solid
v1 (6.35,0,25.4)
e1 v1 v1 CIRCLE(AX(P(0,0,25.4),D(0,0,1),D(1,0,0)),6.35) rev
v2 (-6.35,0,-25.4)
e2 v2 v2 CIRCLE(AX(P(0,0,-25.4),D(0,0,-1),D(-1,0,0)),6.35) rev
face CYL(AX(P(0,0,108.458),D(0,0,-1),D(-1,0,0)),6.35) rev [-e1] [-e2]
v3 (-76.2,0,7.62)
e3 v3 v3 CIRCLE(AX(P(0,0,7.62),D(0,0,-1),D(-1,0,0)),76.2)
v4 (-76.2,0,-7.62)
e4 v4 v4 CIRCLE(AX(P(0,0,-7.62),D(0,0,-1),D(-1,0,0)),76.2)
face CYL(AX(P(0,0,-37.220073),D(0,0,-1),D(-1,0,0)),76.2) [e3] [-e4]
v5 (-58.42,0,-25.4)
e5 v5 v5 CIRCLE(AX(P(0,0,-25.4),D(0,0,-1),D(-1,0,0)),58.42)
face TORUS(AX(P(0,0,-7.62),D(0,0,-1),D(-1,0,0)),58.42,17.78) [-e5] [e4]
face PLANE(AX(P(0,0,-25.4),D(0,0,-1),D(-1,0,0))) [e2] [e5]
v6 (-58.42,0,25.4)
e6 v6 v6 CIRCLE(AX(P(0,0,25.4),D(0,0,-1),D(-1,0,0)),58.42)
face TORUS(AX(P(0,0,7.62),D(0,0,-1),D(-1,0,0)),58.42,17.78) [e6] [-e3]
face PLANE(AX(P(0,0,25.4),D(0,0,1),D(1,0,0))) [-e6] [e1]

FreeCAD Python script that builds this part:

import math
import FreeCAD as App
import Part
import Sketcher
Q = App.Units.Quantity

doc = App.newDocument("Part")
body = doc.addObject("PartDesign::Body", "Body")

# Sketch on YZ plane
sketch1 = body.newObject("Sketcher::SketchObject", "Sketch")
sketch1.AttachmentSupport = (doc.getObject("YZ_Plane"), [""])
sketch1.MapMode = "FlatFace"
sketch1.addGeometry(Part.LineSegment(App.Vector(58, 25, 0), App.Vector(0, 25, 0)), False)
sketch1.addGeometry(Part.LineSegment(App.Vector(0, 25, 0), App.Vector(0, -25, 0)), False)
sketch1.addGeometry(Part.LineSegment(App.Vector(0, -25, 0), App.Vector(58, -25, 0)), False)
sketch1.addGeometry(Part.ArcOfCircle(Part.Circle(App.Vector(58, -8, 0), App.Vector(0, 0, 1), 18), math.radians(-90), math.radians(0)), False)
sketch1.addGeometry(Part.LineSegment(App.Vector(76, -8, 0), App.Vector(76, 8, 0)), False)
sketch1.addGeometry(Part.ArcOfCircle(Part.Circle(App.Vector(58, 8, 0), App.Vector(0, 0, 1), 18), math.radians(0), math.radians(90)), False)
sketch1.addConstraint(Sketcher.Constraint("Coincident", 0, 2, 1, 1))
sketch1.addConstraint(Sketcher.Constraint("Coincident", 1, 2, 2, 1))
sketch1.addConstraint(Sketcher.Constraint("Tangent", 2, 2, 3, 1))
sketch1.addConstraint(Sketcher.Constraint("Tangent", 3, 2, 4, 1))
sketch1.addConstraint(Sketcher.Constraint("Tangent", 4, 2, 5, 1))
sketch1.addConstraint(Sketcher.Constraint("Tangent", 5, 2, 0, 1))
sketch1.addConstraint(Sketcher.Constraint("Horizontal", 0))
sketch1.addConstraint(Sketcher.Constraint("Vertical", 1))
sketch1.addConstraint(Sketcher.Constraint("Horizontal", 2))
sketch1.addConstraint(Sketcher.Constraint("Vertical", 4))
sketch1.addConstraint(Sketcher.Constraint("Equal", 3, 5))
sketch1.addConstraint(Sketcher.Constraint("Symmetric", 0, 2, 1, 2, -1, 1))
sketch1.addConstraint(Sketcher.Constraint("Radius", 3, Q("0.7 in")))
sketch1.addConstraint(Sketcher.Constraint("DistanceY", 1, 2, 1, 1, Q("2 in")))
sketch1.addConstraint(Sketcher.Constraint("DistanceX", 0, 2, 0, 1, Q("2.3 in")))
revolution = body.newObject("PartDesign::Revolution", "Revolution")
revolution.Profile = sketch1
revolution.ReferenceAxis = (sketch1, ["V_Axis"])
revolution.Angle = 360

# Sketch on XY plane
sketch2 = body.newObject("Sketcher::SketchObject", "Sketch001")
sketch2.AttachmentSupport = (doc.getObject("XY_Plane"), [""])
sketch2.MapMode = "FlatFace"
sketch2.addGeometry(Part.Circle(App.Vector(0, 0, 0), App.Vector(0, 0, 1), 6), False)
sketch2.addConstraint(Sketcher.Constraint("Coincident", 0, 3, -1, 1))
sketch2.addConstraint(Sketcher.Constraint("Diameter", 0, Q("0.5 in")))
pocket1 = body.newObject("PartDesign::Pocket", "Pocket")
pocket1.Profile = sketch2
pocket1.Type = "ThroughAll"
pocket1.Midplane = True

doc.recompute()
